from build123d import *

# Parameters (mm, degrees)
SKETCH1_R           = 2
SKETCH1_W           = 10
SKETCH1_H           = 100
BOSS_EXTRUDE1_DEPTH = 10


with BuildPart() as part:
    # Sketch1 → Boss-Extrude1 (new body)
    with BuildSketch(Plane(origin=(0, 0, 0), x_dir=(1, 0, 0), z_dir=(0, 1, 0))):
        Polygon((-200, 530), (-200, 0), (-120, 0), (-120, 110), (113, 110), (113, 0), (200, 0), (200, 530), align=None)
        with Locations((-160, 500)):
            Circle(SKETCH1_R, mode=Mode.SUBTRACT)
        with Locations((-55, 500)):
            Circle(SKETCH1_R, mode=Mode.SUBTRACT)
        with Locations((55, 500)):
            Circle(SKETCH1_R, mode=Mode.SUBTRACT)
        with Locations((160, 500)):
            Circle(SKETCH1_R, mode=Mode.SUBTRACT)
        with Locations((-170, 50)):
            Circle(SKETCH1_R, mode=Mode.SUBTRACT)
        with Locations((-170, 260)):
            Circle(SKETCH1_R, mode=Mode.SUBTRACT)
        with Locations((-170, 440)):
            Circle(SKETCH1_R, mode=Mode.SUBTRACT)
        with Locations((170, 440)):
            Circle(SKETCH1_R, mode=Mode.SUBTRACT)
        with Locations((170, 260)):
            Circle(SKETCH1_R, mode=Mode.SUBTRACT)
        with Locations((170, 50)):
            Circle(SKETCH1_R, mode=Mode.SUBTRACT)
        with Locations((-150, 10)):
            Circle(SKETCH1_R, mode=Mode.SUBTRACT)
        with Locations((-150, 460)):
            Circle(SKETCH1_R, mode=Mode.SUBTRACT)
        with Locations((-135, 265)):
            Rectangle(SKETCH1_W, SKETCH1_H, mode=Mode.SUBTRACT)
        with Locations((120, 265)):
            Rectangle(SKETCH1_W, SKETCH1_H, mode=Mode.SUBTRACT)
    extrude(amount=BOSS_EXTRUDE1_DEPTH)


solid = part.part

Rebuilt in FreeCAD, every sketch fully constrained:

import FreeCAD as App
import Part
import Sketcher

V = App.Vector

doc = App.newDocument("Part")
body = doc.addObject("PartDesign::Body", "Body")

# Sketch on XZ plane
sketch1 = body.newObject("Sketcher::SketchObject", "Sketch")
sketch1.AttachmentSupport = (doc.getObject("XZ_Plane"), [""])
sketch1.MapMode = "FlatFace"
sketch1.addGeometry([
    Part.LineSegment(V(-200, -530, 0), V(-200, 0, 0)),  # 0
    Part.LineSegment(V(-200, 0, 0), V(-120, 0, 0)),  # 1
    Part.LineSegment(V(-120, 0, 0), V(-120, -110, 0)),  # 2
    Part.LineSegment(V(-120, -110, 0), V(113, -110, 0)),  # 3
    Part.LineSegment(V(113, -110, 0), V(113, 0, 0)),  # 4
    Part.LineSegment(V(113, 0, 0), V(200, 0, 0)),  # 5
    Part.LineSegment(V(200, 0, 0), V(200, -530, 0)),  # 6
    Part.LineSegment(V(200, -530, 0), V(-200, -530, 0)),  # 7
    Part.Circle(V(-150, -10, 0), V(0, 0, 1), 2),  # 8
    Part.Circle(V(-170, -50, 0), V(0, 0, 1), 2),  # 9
    Part.Circle(V(170, -50, 0), V(0, 0, 1), 2),  # 10
    Part.Circle(V(-170, -260, 0), V(0, 0, 1), 2),  # 11
    Part.LineSegment(V(-130, -215, 0), V(-140, -215, 0)),  # 12
    Part.LineSegment(V(-140, -215, 0), V(-140, -315, 0)),  # 13
    Part.LineSegment(V(-140, -315, 0), V(-130, -315, 0)),  # 14
    Part.LineSegment(V(-130, -315, 0), V(-130, -215, 0)),  # 15
    Part.Circle(V(-170, -440, 0), V(0, 0, 1), 2),  # 16
    Part.Circle(V(-150, -460, 0), V(0, 0, 1), 2),  # 17
    Part.Circle(V(-160, -500, 0), V(0, 0, 1), 2),  # 18
    Part.Circle(V(-55, -500, 0), V(0, 0, 1), 2),  # 19
    Part.LineSegment(V(125, -215, 0), V(115, -215, 0)),  # 20
    Part.LineSegment(V(115, -215, 0), V(115, -315, 0)),  # 21
    Part.LineSegment(V(115, -315, 0), V(125, -315, 0)),  # 22
    Part.LineSegment(V(125, -315, 0), V(125, -215, 0)),  # 23
    Part.Circle(V(170, -260, 0), V(0, 0, 1), 2),  # 24
    Part.Circle(V(55, -500, 0), V(0, 0, 1), 2),  # 25
    Part.Circle(V(170, -440, 0), V(0, 0, 1), 2),  # 26
    Part.Circle(V(160, -500, 0), V(0, 0, 1), 2),  # 27
], False)
sketch1.addConstraint([
    Sketcher.Constraint("Coincident", 0, 2, 1, 1),
    Sketcher.Constraint("Coincident", 1, 2, 2, 1),
    Sketcher.Constraint("Coincident", 2, 2, 3, 1),
    Sketcher.Constraint("Coincident", 3, 2, 4, 1),
    Sketcher.Constraint("Coincident", 4, 2, 5, 1),
    Sketcher.Constraint("Coincident", 5, 2, 6, 1),
    Sketcher.Constraint("Coincident", 6, 2, 7, 1),
    Sketcher.Constraint("Coincident", 7, 2, 0, 1),
    Sketcher.Constraint("Coincident", 12, 2, 13, 1),
    Sketcher.Constraint("Coincident", 13, 2, 14, 1),
    Sketcher.Constraint("Coincident", 14, 2, 15, 1),
    Sketcher.Constraint("Coincident", 15, 2, 12, 1),
    Sketcher.Constraint("Coincident", 20, 2, 21, 1),
    Sketcher.Constraint("Coincident", 21, 2, 22, 1),
    Sketcher.Constraint("Coincident", 22, 2, 23, 1),
    Sketcher.Constraint("Coincident", 23, 2, 20, 1),
    Sketcher.Constraint("Vertical", 0),
    Sketcher.Constraint("Horizontal", 1),
    Sketcher.Constraint("Vertical", 2),
    Sketcher.Constraint("Horizontal", 3),
    Sketcher.Constraint("Vertical", 4),
    Sketcher.Constraint("Horizontal", 5),
    Sketcher.Constraint("Vertical", 6),
    Sketcher.Constraint("Horizontal", 7),
    Sketcher.Constraint("Horizontal", 12),
    Sketcher.Constraint("Vertical", 13),
    Sketcher.Constraint("Horizontal", 14),
    Sketcher.Constraint("Vertical", 15),
    Sketcher.Constraint("Horizontal", 20),
    Sketcher.Constraint("Vertical", 21),
    Sketcher.Constraint("Horizontal", 22),
    Sketcher.Constraint("Vertical", 23),
    Sketcher.Constraint("Equal", 8, 9),
    Sketcher.Constraint("Equal", 9, 10),
    Sketcher.Constraint("Equal", 10, 11),
    Sketcher.Constraint("Equal", 11, 16),
    Sketcher.Constraint("Equal", 16, 17),
    Sketcher.Constraint("Equal", 17, 18),
    Sketcher.Constraint("Equal", 18, 19),
    Sketcher.Constraint("Equal", 19, 24),
    Sketcher.Constraint("Equal", 24, 25),
    Sketcher.Constraint("Equal", 25, 26),
    Sketcher.Constraint("Equal", 26, 27),
    Sketcher.Constraint("Symmetric", 0, 2, 5, 2, -1, 1),
    Sketcher.Constraint("Symmetric", 9, 3, 10, 3, -2),
    Sketcher.Constraint("Symmetric", 11, 3, 24, 3, -2),
    Sketcher.Constraint("Symmetric", 19, 3, 25, 3, -2),
    Sketcher.Constraint("Symmetric", 16, 3, 26, 3, -2),
    Sketcher.Constraint("Symmetric", 18, 3, 27, 3, -2),
    Sketcher.Constraint("PointOnObject", 0, 2, -1),
    Sketcher.Constraint("Horizontal", 18, 3, 19, 3),
    Sketcher.Constraint("Horizontal", 15, 2, 20, 2),
    Sketcher.Constraint("Horizontal", 14, 2, 21, 2),
    Sketcher.Constraint("Vertical", 9, 3, 11, 3),
    Sketcher.Constraint("Vertical", 11, 3, 16, 3),
    Sketcher.Constraint("Vertical", 8, 3, 17, 3),
    Sketcher.Constraint("Equal", 14, 20),
    Sketcher.Constraint("Diameter", 8, 4.0),
    Sketcher.Constraint("DistanceX", 1, 1, 1, 2, 80.0),
    Sketcher.Constraint("DistanceX", 3, 1, 3, 2, 233.0),
    Sketcher.Constraint("DistanceX", 5, 1, 5, 2, 87.0),
    Sketcher.Constraint("DistanceX", 12, 2, 12, 1, 10.0),
    Sketcher.Constraint("DistanceY", 0, 1, 0, 2, 530.0),
    Sketcher.Constraint("DistanceY", 2, 2, 2, 1, 110.0),
    Sketcher.Constraint("DistanceY", 13, 2, 13, 1, 100.0),
    Sketcher.Constraint("DistanceX", 8, 3, -1, 1, 150.0),
    Sketcher.Constraint("DistanceY", 8, 3, -1, 1, 10.0),
    Sketcher.Constraint("DistanceX", 9, 3, -1, 1, 170.0),
    Sketcher.Constraint("DistanceY", 9, 3, -1, 1, 50.0),
    Sketcher.Constraint("DistanceY", 11, 3, -1, 1, 260.0),
    Sketcher.Constraint("DistanceY", 16, 3, -1, 1, 440.0),
    Sketcher.Constraint("DistanceY", 17, 3, -1, 1, 460.0),
    Sketcher.Constraint("DistanceX", 18, 3, -1, 1, 160.0),
    Sketcher.Constraint("DistanceY", 18, 3, -1, 1, 500.0),
    Sketcher.Constraint("DistanceX", 19, 3, -1, 1, 55.0),
    Sketcher.Constraint("DistanceX", 12, 2, -1, 1, 140.0),
    Sketcher.Constraint("DistanceY", 12, 2, -1, 1, 215.0),
    Sketcher.Constraint("DistanceX", -1, 1, 20, 2, 115.0),
])
pad1 = body.newObject("PartDesign::Pad", "Pad")
pad1.Profile = sketch1
pad1.Length = 10
pad1.Reversed = True

doc.recompute()
